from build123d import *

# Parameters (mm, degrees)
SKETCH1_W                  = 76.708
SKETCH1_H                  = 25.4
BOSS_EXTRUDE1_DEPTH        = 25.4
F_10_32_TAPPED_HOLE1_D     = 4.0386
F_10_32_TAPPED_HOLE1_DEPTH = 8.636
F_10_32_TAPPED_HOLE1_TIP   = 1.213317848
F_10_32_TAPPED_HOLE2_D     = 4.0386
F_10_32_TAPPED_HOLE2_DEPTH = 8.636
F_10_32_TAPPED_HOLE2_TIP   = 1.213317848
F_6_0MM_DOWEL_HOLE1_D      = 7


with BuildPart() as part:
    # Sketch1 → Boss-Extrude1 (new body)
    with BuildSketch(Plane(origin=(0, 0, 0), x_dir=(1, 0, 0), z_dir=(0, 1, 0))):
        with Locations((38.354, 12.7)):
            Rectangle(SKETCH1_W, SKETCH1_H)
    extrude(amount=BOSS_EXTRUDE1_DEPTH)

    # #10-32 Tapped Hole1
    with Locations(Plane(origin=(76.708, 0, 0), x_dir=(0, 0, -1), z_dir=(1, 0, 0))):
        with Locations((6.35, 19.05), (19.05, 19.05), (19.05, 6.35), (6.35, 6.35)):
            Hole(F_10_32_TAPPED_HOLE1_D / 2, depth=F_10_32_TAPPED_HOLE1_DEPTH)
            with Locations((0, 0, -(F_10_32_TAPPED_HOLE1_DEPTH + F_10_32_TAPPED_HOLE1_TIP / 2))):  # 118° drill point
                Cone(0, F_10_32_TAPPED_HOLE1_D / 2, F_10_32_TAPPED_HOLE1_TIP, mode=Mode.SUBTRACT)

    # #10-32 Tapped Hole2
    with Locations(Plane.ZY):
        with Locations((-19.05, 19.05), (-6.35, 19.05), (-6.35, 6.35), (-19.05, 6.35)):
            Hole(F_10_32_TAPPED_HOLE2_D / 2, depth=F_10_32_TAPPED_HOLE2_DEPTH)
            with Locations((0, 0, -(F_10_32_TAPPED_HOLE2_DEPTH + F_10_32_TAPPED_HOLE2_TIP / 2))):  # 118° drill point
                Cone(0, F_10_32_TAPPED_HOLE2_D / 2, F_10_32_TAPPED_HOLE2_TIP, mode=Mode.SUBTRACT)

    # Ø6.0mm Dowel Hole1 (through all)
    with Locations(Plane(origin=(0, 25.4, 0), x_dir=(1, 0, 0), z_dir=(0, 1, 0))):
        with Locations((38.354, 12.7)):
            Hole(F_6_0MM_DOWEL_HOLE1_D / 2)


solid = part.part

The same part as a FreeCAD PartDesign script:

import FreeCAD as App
import Part
import Sketcher
from FreeCAD import Vector
Q = App.Units.Quantity

doc = App.newDocument("Part")
body = doc.addObject("PartDesign::Body", "Body")

sketch1 = doc.addObject("Sketcher::SketchObject", "Sketch")
body.addObject(sketch1)
sketch1.AttachmentSupport = (doc.XZ_Plane, [""])
sketch1.MapMode = "FlatFace"
sketch1.addGeometry([
    Part.LineSegment(Vector(0, -25.4, 0), Vector(0, 0, 0)),
    Part.LineSegment(Vector(0, 0, 0), Vector(76.708, 0, 0)),
    Part.LineSegment(Vector(76.708, 0, 0), Vector(76.708, -25.4, 0)),
    Part.LineSegment(Vector(76.708, -25.4, 0), Vector(0, -25.4, 0)),
], False)
sketch1.addConstraint([
    Sketcher.Constraint("Coincident", 0, 2, 1, 1),
    Sketcher.Constraint("Coincident", 1, 2, 2, 1),
    Sketcher.Constraint("Coincident", 2, 2, 3, 1),
    Sketcher.Constraint("Coincident", 3, 2, 0, 1),
    Sketcher.Constraint("Vertical", 0),
    Sketcher.Constraint("Horizontal", 1),
    Sketcher.Constraint("Vertical", 2),
    Sketcher.Constraint("Horizontal", 3),
    Sketcher.Constraint("Coincident", 0, 2, -1, 1),
    Sketcher.Constraint("DistanceY", 0, 1, 0, 2, Q("1 in")),
    Sketcher.Constraint("DistanceX", 1, 1, 1, 2, Q("3.02 in")),
])
pad1 = doc.addObject("PartDesign::Pad", "Pad")
body.addObject(pad1)
pad1.Profile = sketch1
pad1.Length = Q("1 in")
pad1.Reversed = True

sketch2 = doc.addObject("Sketcher::SketchObject", "Sketch001")
body.addObject(sketch2)
sketch2.AttachmentSupport = (doc.YZ_Plane, [""])
sketch2.MapMode = "FlatFace"
sketch2.AttachmentOffset = App.Placement(Vector(0, 0, 3.02 * 25.4), App.Rotation())
sketch2.addGeometry([
    Part.Circle(Vector(19.05, -6.35, 0), Vector(0, 0, 1), 2.0193),
    Part.Circle(Vector(19.05, -19.05, 0), Vector(0, 0, 1), 2.0193),
    Part.Circle(Vector(6.35, -19.05, 0), Vector(0, 0, 1), 2.0193),
    Part.Circle(Vector(6.35, -6.35, 0), Vector(0, 0, 1), 2.0193),
], False)
sketch2.addConstraint([
    Sketcher.Constraint("Equal", 0, 1),
    Sketcher.Constraint("Equal", 1, 2),
    Sketcher.Constraint("Equal", 2, 3),
    Sketcher.Constraint("Horizontal", 1, 3, 2, 3),
    Sketcher.Constraint("Horizontal", 0, 3, 3, 3),
    Sketcher.Constraint("Vertical", 0, 3, 1, 3),
    Sketcher.Constraint("Vertical", 2, 3, 3, 3),
    Sketcher.Constraint("Diameter", 0, Q("0.159 in")),
    Sketcher.Constraint("DistanceY", 1, 3, 0, 3, Q("0.5 in")),
    Sketcher.Constraint("DistanceX", 2, 3, 1, 3, Q("0.5 in")),
    Sketcher.Constraint("DistanceX", -1, 1, 0, 3, Q("0.75 in")),
    Sketcher.Constraint("DistanceY", 0, 3, -1, 1, Q("0.25 in")),
])
doc.recompute()
hole = doc.addObject("PartDesign::Hole", "Hole")
body.addObject(hole)
hole.Profile = sketch2
hole.ThreadType = "None"
hole.Diameter = Q("0.159 in")
hole.DepthType = "Dimension"
hole.Depth = Q("0.34 in")
hole.DrillPoint = "Angled"
hole.DrillPointAngle = 118

sketch3 = doc.addObject("Sketcher::SketchObject", "Sketch002")
body.addObject(sketch3)
sketch3.AttachmentSupport = (doc.YZ_Plane, [""])
sketch3.MapMode = "FlatFace"
sketch3.addGeometry([
    Part.Circle(Vector(19.05, -19.05, 0), Vector(0, 0, 1), 2.0193),
    Part.Circle(Vector(19.05, -6.35, 0), Vector(0, 0, 1), 2.0193),
    Part.Circle(Vector(6.35, -6.35, 0), Vector(0, 0, 1), 2.0193),
    Part.Circle(Vector(6.35, -19.05, 0), Vector(0, 0, 1), 2.0193),
], False)
sketch3.addConstraint([
    Sketcher.Constraint("Equal", 0, 1),
    Sketcher.Constraint("Equal", 1, 2),
    Sketcher.Constraint("Equal", 2, 3),
    Sketcher.Constraint("Horizontal", 1, 3, 2, 3),
    Sketcher.Constraint("Horizontal", 0, 3, 3, 3),
    Sketcher.Constraint("Vertical", 0, 3, 1, 3),
    Sketcher.Constraint("Vertical", 2, 3, 3, 3),
    Sketcher.Constraint("Diameter", 0, Q("0.159 in")),
    Sketcher.Constraint("DistanceY", 0, 3, 1, 3, Q("0.5 in")),
    Sketcher.Constraint("DistanceX", 2, 3, 1, 3, Q("0.5 in")),
    Sketcher.Constraint("DistanceX", -1, 1, 0, 3, Q("0.75 in")),
    Sketcher.Constraint("DistanceY", 0, 3, -1, 1, Q("0.75 in")),
])
doc.recompute()
hole2 = doc.addObject("PartDesign::Hole", "Hole001")
body.addObject(hole2)
hole2.Profile = sketch3
hole2.ThreadType = "None"
hole2.Diameter = Q("0.159 in")
hole2.DepthType = "Dimension"
hole2.Depth = Q("0.34 in")
hole2.DrillPoint = "Angled"
hole2.DrillPointAngle = 118
hole2.Reversed = True

sketch4 = doc.addObject("Sketcher::SketchObject", "Sketch003")
body.addObject(sketch4)
sketch4.AttachmentSupport = (doc.XZ_Plane, [""])
sketch4.MapMode = "FlatFace"
sketch4.AttachmentOffset = App.Placement(Vector(0, 0, -1 * 25.4), App.Rotation())
sketch4.addGeometry(Part.Circle(Vector(38.354, -12.7, 0), Vector(0, 0, 1), 3.5), False)
sketch4.addConstraint([
    Sketcher.Constraint("DistanceY", 0, 3, -1, 1, Q("0.5 in")),
    Sketcher.Constraint("Diameter", 0, 7.0),
    Sketcher.Constraint("DistanceX", -1, 1, 0, 3, Q("1.51 in")),
])
doc.recompute()
hole3 = doc.addObject("PartDesign::Hole", "Hole002")
body.addObject(hole3)
hole3.Profile = sketch4
hole3.ThreadType = "None"
hole3.Diameter = 7
hole3.DepthType = "ThroughAll"
hole3.Reversed = True

doc.recompute()
